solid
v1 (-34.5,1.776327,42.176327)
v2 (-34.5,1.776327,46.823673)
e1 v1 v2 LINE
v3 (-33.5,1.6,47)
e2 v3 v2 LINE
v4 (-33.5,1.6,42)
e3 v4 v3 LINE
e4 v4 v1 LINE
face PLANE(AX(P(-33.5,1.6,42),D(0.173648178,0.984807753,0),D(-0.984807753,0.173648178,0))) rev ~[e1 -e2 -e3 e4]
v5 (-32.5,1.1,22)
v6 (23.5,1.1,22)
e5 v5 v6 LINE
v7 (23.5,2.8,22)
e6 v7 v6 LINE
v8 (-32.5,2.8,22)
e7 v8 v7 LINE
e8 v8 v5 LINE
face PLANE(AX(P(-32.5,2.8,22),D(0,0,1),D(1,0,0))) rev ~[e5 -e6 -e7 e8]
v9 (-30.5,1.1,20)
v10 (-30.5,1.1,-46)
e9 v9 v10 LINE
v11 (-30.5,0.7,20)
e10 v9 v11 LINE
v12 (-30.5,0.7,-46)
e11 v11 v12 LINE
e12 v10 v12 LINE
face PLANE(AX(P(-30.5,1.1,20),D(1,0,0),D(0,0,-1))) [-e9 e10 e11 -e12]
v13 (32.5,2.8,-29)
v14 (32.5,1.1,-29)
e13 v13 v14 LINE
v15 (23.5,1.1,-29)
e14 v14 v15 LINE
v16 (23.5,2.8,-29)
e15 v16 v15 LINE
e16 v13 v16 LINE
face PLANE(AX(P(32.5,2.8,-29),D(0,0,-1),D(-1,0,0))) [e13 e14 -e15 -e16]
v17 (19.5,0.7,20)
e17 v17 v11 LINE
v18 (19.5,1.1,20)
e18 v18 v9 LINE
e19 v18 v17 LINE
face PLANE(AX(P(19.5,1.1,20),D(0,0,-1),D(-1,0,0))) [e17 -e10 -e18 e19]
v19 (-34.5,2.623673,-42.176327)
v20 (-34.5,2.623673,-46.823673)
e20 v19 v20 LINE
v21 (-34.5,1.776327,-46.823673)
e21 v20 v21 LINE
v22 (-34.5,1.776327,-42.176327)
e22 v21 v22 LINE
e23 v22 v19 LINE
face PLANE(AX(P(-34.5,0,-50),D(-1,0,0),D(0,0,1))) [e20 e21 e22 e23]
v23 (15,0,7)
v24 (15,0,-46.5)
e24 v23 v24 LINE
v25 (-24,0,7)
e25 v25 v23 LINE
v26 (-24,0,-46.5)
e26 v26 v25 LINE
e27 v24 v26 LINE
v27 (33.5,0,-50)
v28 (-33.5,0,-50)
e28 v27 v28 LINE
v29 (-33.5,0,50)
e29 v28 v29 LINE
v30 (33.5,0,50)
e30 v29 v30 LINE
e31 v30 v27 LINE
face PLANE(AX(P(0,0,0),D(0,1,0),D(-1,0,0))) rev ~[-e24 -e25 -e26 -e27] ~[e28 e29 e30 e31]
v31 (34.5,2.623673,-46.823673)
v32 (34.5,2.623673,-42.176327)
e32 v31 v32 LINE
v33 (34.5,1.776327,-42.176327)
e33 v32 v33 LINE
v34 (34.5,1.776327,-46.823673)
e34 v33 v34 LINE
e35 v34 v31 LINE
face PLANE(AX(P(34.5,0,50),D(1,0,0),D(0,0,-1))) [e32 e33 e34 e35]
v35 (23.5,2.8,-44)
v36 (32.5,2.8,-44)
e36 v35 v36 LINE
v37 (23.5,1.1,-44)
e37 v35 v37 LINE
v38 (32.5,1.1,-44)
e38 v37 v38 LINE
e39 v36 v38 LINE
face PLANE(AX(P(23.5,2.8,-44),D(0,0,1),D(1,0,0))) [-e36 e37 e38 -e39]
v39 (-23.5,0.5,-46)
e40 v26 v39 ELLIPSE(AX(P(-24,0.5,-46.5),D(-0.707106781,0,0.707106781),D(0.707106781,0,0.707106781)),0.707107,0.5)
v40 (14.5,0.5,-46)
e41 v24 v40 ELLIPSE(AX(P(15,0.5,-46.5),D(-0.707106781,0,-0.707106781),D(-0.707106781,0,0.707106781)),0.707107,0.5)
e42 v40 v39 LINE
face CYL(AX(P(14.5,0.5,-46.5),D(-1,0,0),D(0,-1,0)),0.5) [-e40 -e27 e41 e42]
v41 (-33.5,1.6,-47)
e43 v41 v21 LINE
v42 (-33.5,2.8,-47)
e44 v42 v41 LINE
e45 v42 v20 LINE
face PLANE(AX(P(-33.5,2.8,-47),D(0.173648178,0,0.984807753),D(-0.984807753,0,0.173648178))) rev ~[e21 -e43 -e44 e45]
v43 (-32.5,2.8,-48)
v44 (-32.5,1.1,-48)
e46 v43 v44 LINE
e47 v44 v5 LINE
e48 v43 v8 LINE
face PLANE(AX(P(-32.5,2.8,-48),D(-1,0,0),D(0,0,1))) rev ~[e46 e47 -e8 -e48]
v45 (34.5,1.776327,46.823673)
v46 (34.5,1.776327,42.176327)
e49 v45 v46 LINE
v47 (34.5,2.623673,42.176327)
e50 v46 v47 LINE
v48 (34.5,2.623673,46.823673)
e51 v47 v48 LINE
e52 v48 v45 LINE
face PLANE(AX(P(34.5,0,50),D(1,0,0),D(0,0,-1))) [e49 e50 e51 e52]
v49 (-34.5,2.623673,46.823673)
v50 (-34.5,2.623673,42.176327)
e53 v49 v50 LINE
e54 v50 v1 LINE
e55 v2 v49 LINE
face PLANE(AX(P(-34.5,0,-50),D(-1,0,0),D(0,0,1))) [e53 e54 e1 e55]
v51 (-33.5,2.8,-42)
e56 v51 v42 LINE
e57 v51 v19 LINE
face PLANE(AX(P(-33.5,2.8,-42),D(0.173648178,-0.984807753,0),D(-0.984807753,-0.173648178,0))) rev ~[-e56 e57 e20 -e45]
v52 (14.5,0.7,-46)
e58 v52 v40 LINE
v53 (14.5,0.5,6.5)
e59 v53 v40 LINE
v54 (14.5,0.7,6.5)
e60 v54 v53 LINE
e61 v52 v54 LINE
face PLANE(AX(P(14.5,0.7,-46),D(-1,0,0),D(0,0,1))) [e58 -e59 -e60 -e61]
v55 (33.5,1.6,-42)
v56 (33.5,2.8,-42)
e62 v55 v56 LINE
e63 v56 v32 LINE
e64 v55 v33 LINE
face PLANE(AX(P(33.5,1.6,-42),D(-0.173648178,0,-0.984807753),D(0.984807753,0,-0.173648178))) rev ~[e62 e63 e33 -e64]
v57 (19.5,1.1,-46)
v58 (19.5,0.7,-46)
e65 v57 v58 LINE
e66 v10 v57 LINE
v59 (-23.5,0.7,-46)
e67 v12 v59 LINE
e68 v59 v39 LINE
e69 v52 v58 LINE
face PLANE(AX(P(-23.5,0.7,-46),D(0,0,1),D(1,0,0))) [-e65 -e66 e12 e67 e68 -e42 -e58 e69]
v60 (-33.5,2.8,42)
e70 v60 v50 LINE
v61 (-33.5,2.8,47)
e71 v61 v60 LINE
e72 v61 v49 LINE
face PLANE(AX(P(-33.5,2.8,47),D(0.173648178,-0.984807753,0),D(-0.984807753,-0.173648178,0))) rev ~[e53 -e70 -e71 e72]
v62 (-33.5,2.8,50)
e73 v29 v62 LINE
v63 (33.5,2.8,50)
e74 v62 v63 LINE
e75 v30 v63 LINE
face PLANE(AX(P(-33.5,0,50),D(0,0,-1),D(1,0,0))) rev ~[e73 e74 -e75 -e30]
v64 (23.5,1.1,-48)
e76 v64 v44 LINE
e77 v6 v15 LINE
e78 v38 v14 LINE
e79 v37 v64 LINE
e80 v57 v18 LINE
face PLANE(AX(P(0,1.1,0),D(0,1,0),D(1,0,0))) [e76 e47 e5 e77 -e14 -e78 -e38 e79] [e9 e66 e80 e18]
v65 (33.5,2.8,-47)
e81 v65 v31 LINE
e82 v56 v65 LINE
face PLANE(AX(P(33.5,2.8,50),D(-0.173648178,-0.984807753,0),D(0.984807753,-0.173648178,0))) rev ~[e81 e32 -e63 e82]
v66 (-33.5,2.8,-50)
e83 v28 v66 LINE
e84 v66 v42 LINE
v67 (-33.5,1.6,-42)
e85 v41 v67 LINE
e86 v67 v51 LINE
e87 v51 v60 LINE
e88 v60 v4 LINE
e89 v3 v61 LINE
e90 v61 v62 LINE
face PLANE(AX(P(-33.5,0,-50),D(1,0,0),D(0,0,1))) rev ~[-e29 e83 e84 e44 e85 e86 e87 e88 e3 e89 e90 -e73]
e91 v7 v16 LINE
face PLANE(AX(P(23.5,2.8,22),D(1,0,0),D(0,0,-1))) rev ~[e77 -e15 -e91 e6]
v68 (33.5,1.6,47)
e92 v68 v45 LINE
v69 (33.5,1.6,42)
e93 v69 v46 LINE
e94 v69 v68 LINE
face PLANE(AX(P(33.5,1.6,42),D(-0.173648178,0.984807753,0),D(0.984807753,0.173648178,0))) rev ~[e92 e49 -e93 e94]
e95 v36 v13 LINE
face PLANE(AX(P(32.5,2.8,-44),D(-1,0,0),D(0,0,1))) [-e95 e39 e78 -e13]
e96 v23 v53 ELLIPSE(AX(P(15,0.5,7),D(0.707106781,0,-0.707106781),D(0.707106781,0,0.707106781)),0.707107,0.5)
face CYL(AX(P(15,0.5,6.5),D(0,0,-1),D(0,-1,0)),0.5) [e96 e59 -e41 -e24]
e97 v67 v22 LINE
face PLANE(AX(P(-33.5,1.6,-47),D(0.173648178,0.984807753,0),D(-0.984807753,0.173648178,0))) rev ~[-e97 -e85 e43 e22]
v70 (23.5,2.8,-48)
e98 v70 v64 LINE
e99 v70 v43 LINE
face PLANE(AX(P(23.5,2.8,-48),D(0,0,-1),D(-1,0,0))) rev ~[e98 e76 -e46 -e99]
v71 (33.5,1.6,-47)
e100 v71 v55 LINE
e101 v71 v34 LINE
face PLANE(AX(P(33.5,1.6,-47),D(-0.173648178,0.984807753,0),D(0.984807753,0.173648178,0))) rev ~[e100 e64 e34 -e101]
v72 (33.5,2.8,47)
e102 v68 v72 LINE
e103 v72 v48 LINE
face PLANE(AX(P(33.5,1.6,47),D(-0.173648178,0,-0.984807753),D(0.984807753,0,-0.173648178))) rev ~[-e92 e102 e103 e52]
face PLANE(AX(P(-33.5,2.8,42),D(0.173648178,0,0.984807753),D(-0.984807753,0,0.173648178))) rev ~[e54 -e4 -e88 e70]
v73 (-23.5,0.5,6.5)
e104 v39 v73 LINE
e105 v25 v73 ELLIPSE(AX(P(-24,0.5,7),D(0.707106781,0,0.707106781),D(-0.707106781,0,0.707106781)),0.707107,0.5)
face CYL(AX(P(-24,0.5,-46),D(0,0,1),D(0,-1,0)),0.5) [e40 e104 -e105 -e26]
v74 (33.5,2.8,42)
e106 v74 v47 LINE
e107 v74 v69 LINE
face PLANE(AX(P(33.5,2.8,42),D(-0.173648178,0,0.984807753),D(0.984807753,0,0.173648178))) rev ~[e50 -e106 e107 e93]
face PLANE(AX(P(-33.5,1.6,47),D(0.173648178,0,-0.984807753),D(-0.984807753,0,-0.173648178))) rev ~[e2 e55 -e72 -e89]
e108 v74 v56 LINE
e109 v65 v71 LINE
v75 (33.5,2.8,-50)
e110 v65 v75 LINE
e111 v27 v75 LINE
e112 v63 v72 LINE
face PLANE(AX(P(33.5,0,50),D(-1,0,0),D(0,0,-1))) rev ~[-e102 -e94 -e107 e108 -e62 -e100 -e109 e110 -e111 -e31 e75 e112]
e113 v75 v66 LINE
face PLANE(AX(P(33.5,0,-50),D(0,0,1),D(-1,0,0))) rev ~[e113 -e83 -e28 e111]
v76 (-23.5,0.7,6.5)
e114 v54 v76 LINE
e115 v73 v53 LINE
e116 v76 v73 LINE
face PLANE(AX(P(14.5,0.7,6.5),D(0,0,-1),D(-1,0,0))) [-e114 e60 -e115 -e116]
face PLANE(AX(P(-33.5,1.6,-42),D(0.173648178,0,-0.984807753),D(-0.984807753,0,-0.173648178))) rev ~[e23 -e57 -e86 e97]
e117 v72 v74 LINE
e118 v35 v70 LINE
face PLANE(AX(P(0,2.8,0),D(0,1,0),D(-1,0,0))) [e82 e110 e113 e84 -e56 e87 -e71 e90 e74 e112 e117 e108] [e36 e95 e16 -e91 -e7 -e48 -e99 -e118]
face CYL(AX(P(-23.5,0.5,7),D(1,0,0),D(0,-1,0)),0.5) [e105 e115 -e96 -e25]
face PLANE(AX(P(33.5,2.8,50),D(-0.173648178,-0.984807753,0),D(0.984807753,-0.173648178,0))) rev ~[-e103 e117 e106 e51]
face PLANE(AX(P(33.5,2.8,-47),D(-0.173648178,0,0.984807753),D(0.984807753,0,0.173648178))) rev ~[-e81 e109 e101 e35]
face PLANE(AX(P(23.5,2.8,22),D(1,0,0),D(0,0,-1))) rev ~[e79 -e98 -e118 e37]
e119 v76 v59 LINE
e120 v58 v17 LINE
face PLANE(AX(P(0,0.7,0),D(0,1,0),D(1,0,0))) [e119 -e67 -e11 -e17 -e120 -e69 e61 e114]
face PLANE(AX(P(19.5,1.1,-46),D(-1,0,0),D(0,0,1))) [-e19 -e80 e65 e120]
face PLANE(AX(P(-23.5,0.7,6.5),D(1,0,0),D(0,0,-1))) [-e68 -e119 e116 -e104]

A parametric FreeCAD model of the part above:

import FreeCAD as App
import Part
import Sketcher
from FreeCAD import Vector
Q = App.Units.Quantity


def edges_at(feature, points):
    """Names of the edges that pass closest to the given points."""
    edges = feature.Shape.Edges
    near = lambda p: min(range(len(edges)), key=lambda i: edges[i].distToShape(Part.Vertex(*p))[0])
    return sorted({f"Edge{near(p) + 1}" for p in points})


def add_polygon(sketch, points):
    """Adds a closed chain of lines whose ends are joined by coincident constraints."""
    first, n = sketch.GeometryCount, len(points)
    for a, b in zip(points, points[1:] + points[:1]):
        sketch.addGeometry(Part.LineSegment(App.Vector(*a, 0), App.Vector(*b, 0)), False)
    for i in range(n):
        sketch.addConstraint(Sketcher.Constraint("Coincident", first + i, 2, first + (i + 1) % n, 1))

doc = App.newDocument("Part")
body = doc.addObject("PartDesign::Body", "Body")

sketch1 = body.newObject("Sketcher::SketchObject", "Sketch")
sketch1.AttachmentSupport = (doc.getObject("XZ_Plane"), [""])
sketch1.MapMode = "FlatFace"
add_polygon(sketch1, [(34, 50), (34, -50), (-34, -50), (-34, 50)])
sketch1.addConstraint(Sketcher.Constraint("Vertical", 0))
sketch1.addConstraint(Sketcher.Constraint("Horizontal", 1))
sketch1.addConstraint(Sketcher.Constraint("Vertical", 2))
sketch1.addConstraint(Sketcher.Constraint("Horizontal", 3))
sketch1.addConstraint(Sketcher.Constraint("Symmetric", 0, 2, 2, 2, -1, 1))
sketch1.addConstraint(Sketcher.Constraint("DistanceX", 1, 2, 1, 1, Q("67 mm")))
sketch1.addConstraint(Sketcher.Constraint("DistanceY", 0, 2, 0, 1, Q("100 mm")))
pad1 = body.newObject("PartDesign::Pad", "Pad")
pad1.Profile = sketch1
pad1.Length = 2.8
pad1.Reversed = True

sketch2 = body.newObject("Sketcher::SketchObject", "Sketch001")
sketch2.AttachmentSupport = (doc.getObject("XZ_Plane"), [""])
sketch2.MapMode = "FlatFace"
sketch2.AttachmentOffset = App.Placement(Vector(0, 0, -2.8), App.Rotation())
add_polygon(sketch2, [(-32, -48), (-32, 22), (24, 22), (24, -48)])
sketch2.addConstraint(Sketcher.Constraint("Vertical", 0))
sketch2.addConstraint(Sketcher.Constraint("Horizontal", 1))
sketch2.addConstraint(Sketcher.Constraint("Vertical", 2))
sketch2.addConstraint(Sketcher.Constraint("Horizontal", 3))
sketch2.addConstraint(Sketcher.Constraint("DistanceX", 1, 1, 1, 2, Q("56 mm")))
sketch2.addConstraint(Sketcher.Constraint("DistanceY", 0, 1, 0, 2, Q("70 mm")))
sketch2.addConstraint(Sketcher.Constraint("DistanceY", -1, 1, 0, 2, Q("22 mm")))
sketch2.addConstraint(Sketcher.Constraint("DistanceX", 0, 2, -1, 1, Q("32.5 mm")))
pocket1 = body.newObject("PartDesign::Pocket", "Pocket")
pocket1.Profile = sketch2
pocket1.Length = 1.7
pocket1.Reversed = True

sketch3 = body.newObject("Sketcher::SketchObject", "Sketch002")
sketch3.AttachmentSupport = (doc.getObject("XZ_Plane"), [""])
sketch3.MapMode = "FlatFace"
sketch3.AttachmentOffset = App.Placement(Vector(0, 0, -1.1), App.Rotation())
add_polygon(sketch3, [(20, -46), (-30, -46), (-30, 20), (20, 20)])
sketch3.addConstraint(Sketcher.Constraint("Horizontal", 0))
sketch3.addConstraint(Sketcher.Constraint("Vertical", 1))
sketch3.addConstraint(Sketcher.Constraint("Horizontal", 2))
sketch3.addConstraint(Sketcher.Constraint("Vertical", 3))
sketch3.addConstraint(Sketcher.Constraint("DistanceX", 0, 2, 0, 1, Q("50 mm")))
sketch3.addConstraint(Sketcher.Constraint("DistanceY", 1, 1, 1, 2, Q("66 mm")))
sketch3.addConstraint(Sketcher.Constraint("DistanceY", 0, 2, -1, 1, Q("46 mm")))
sketch3.addConstraint(Sketcher.Constraint("DistanceX", 0, 2, -1, 1, Q("30.5 mm")))
pocket2 = body.newObject("PartDesign::Pocket", "Pocket001")
pocket2.Profile = sketch3
pocket2.Length = 0.4
pocket2.Reversed = True

sketch4 = body.newObject("Sketcher::SketchObject", "Sketch003")
sketch4.AttachmentSupport = (doc.getObject("XZ_Plane"), [""])
sketch4.MapMode = "FlatFace"
sketch4.AttachmentOffset = App.Placement(Vector(0, 0, -0.7), App.Rotation())
add_polygon(sketch4, [(14, -46), (-24, -46), (-24, 6), (14, 6)])
sketch4.addConstraint(Sketcher.Constraint("Horizontal", 0))
sketch4.addConstraint(Sketcher.Constraint("Vertical", 1))
sketch4.addConstraint(Sketcher.Constraint("Horizontal", 2))
sketch4.addConstraint(Sketcher.Constraint("Vertical", 3))
sketch4.addConstraint(Sketcher.Constraint("DistanceX", 0, 2, 0, 1, Q("38 mm")))
sketch4.addConstraint(Sketcher.Constraint("DistanceY", 1, 1, 1, 2, Q("52.5 mm")))
sketch4.addConstraint(Sketcher.Constraint("DistanceY", 0, 2, -1, 1, Q("46 mm")))
sketch4.addConstraint(Sketcher.Constraint("DistanceX", 0, 2, -1, 1, Q("23.5 mm")))
pocket3 = body.newObject("PartDesign::Pocket", "Pocket002")
pocket3.Profile = sketch4
pocket3.Type = "UpToFirst"
pocket3.Reversed = True

sketch5 = body.newObject("Sketcher::SketchObject", "Sketch004")
sketch5.AttachmentSupport = (doc.getObject("XZ_Plane"), [""])
sketch5.MapMode = "FlatFace"
sketch5.AttachmentOffset = App.Placement(Vector(0, 0, -2.8), App.Rotation())
add_polygon(sketch5, [(32, -44), (24, -44), (24, -29), (32, -29)])
sketch5.addConstraint(Sketcher.Constraint("Horizontal", 0))
sketch5.addConstraint(Sketcher.Constraint("Vertical", 1))
sketch5.addConstraint(Sketcher.Constraint("Horizontal", 2))
sketch5.addConstraint(Sketcher.Constraint("Vertical", 3))
sketch5.addConstraint(Sketcher.Constraint("DistanceY", 1, 1, 1, 2, Q("15 mm")))
sketch5.addConstraint(Sketcher.Constraint("DistanceX", 0, 2, 0, 1, Q("9 mm")))
sketch5.addConstraint(Sketcher.Constraint("DistanceY", 0, 2, -1, 1, Q("44 mm")))
sketch5.addConstraint(Sketcher.Constraint("DistanceX", -1, 1, 0, 2, Q("23.5 mm")))
pocket4 = body.newObject("PartDesign::Pocket", "Pocket003")
pocket4.Profile = sketch5
pocket4.Length = 1.7
pocket4.Reversed = True

sketch6 = body.newObject("Sketcher::SketchObject", "Sketch005")
sketch6.AttachmentSupport = (doc.getObject("YZ_Plane"), [""])
sketch6.MapMode = "FlatFace"
sketch6.AttachmentOffset = App.Placement(Vector(0, 0, 33.5), App.Rotation())
add_polygon(sketch6, [(2.8, -47), (2.8, -42), (1.6, -42), (1.6, -47)])
add_polygon(sketch6, [(2.8, 42), (2.8, 47), (1.6, 47), (1.6, 42)])
sketch6.addConstraint(Sketcher.Constraint("Vertical", 0))
sketch6.addConstraint(Sketcher.Constraint("Horizontal", 1))
sketch6.addConstraint(Sketcher.Constraint("Vertical", 2))
sketch6.addConstraint(Sketcher.Constraint("Horizontal", 3))
sketch6.addConstraint(Sketcher.Constraint("Vertical", 4))
sketch6.addConstraint(Sketcher.Constraint("Horizontal", 5))
sketch6.addConstraint(Sketcher.Constraint("Vertical", 6))
sketch6.addConstraint(Sketcher.Constraint("Horizontal", 7))
sketch6.addConstraint(Sketcher.Constraint("Symmetric", 3, 2, 4, 2, -1))
sketch6.addConstraint(Sketcher.Constraint("Symmetric", 1, 2, 6, 2, -1))
sketch6.addConstraint(Sketcher.Constraint("DistanceY", 0, 1, 0, 2, Q("5 mm")))
sketch6.addConstraint(Sketcher.Constraint("DistanceX", 1, 2, 1, 1, Q("1.2 mm")))
sketch6.addConstraint(Sketcher.Constraint("DistanceY", 0, 2, -1, 1, Q("42 mm")))
sketch6.addConstraint(Sketcher.Constraint("DistanceX", -1, 1, 0, 2, Q("2.8 mm")))
pad2 = body.newObject("PartDesign::Pad", "Pad001")
pad2.Profile = sketch6
pad2.Length = 1
pad2.TaperAngle = -10

sketch7 = body.newObject("Sketcher::SketchObject", "Sketch006")
sketch7.AttachmentSupport = (doc.getObject("YZ_Plane"), [""])
sketch7.MapMode = "FlatFace"
sketch7.AttachmentOffset = App.Placement(Vector(0, 0, -33.5), App.Rotation())
add_polygon(sketch7, [(2.8, 42), (1.6, 42), (1.6, 47), (2.8, 47)])
add_polygon(sketch7, [(2.8, -42), (2.8, -47), (1.6, -47), (1.6, -42)])
sketch7.addConstraint(Sketcher.Constraint("Horizontal", 0))
sketch7.addConstraint(Sketcher.Constraint("Vertical", 1))
sketch7.addConstraint(Sketcher.Constraint("Horizontal", 2))
sketch7.addConstraint(Sketcher.Constraint("Vertical", 3))
sketch7.addConstraint(Sketcher.Constraint("Vertical", 4))
sketch7.addConstraint(Sketcher.Constraint("Horizontal", 5))
sketch7.addConstraint(Sketcher.Constraint("Vertical", 6))
sketch7.addConstraint(Sketcher.Constraint("Horizontal", 7))
sketch7.addConstraint(Sketcher.Constraint("Symmetric", 2, 2, 4, 2, -1))
sketch7.addConstraint(Sketcher.Constraint("Symmetric", 0, 2, 6, 2, -1))
sketch7.addConstraint(Sketcher.Constraint("DistanceY", 1, 1, 1, 2, Q("5 mm")))
sketch7.addConstraint(Sketcher.Constraint("DistanceX", 0, 2, 0, 1, Q("1.2 mm")))
sketch7.addConstraint(Sketcher.Constraint("DistanceY", -1, 1, 0, 2, Q("42 mm")))
sketch7.addConstraint(Sketcher.Constraint("DistanceX", -1, 1, 0, 2, Q("1.6 mm")))
pad3 = body.newObject("PartDesign::Pad", "Pad002")
pad3.Profile = sketch7
pad3.Length = 1
pad3.Reversed = True
pad3.TaperAngle = -10
doc.recompute()

fillet = body.newObject("PartDesign::Fillet", "Fillet")
fillet.Base = (pad3, edges_at(pad3, [
    (-23.5, 0, -19.75),
    (-4.5, 0, -46),
    (-4.5, 0, 6.5),
    (14.5, 0, -19.75),
]))
fillet.Radius = 0.5

doc.recompute()
